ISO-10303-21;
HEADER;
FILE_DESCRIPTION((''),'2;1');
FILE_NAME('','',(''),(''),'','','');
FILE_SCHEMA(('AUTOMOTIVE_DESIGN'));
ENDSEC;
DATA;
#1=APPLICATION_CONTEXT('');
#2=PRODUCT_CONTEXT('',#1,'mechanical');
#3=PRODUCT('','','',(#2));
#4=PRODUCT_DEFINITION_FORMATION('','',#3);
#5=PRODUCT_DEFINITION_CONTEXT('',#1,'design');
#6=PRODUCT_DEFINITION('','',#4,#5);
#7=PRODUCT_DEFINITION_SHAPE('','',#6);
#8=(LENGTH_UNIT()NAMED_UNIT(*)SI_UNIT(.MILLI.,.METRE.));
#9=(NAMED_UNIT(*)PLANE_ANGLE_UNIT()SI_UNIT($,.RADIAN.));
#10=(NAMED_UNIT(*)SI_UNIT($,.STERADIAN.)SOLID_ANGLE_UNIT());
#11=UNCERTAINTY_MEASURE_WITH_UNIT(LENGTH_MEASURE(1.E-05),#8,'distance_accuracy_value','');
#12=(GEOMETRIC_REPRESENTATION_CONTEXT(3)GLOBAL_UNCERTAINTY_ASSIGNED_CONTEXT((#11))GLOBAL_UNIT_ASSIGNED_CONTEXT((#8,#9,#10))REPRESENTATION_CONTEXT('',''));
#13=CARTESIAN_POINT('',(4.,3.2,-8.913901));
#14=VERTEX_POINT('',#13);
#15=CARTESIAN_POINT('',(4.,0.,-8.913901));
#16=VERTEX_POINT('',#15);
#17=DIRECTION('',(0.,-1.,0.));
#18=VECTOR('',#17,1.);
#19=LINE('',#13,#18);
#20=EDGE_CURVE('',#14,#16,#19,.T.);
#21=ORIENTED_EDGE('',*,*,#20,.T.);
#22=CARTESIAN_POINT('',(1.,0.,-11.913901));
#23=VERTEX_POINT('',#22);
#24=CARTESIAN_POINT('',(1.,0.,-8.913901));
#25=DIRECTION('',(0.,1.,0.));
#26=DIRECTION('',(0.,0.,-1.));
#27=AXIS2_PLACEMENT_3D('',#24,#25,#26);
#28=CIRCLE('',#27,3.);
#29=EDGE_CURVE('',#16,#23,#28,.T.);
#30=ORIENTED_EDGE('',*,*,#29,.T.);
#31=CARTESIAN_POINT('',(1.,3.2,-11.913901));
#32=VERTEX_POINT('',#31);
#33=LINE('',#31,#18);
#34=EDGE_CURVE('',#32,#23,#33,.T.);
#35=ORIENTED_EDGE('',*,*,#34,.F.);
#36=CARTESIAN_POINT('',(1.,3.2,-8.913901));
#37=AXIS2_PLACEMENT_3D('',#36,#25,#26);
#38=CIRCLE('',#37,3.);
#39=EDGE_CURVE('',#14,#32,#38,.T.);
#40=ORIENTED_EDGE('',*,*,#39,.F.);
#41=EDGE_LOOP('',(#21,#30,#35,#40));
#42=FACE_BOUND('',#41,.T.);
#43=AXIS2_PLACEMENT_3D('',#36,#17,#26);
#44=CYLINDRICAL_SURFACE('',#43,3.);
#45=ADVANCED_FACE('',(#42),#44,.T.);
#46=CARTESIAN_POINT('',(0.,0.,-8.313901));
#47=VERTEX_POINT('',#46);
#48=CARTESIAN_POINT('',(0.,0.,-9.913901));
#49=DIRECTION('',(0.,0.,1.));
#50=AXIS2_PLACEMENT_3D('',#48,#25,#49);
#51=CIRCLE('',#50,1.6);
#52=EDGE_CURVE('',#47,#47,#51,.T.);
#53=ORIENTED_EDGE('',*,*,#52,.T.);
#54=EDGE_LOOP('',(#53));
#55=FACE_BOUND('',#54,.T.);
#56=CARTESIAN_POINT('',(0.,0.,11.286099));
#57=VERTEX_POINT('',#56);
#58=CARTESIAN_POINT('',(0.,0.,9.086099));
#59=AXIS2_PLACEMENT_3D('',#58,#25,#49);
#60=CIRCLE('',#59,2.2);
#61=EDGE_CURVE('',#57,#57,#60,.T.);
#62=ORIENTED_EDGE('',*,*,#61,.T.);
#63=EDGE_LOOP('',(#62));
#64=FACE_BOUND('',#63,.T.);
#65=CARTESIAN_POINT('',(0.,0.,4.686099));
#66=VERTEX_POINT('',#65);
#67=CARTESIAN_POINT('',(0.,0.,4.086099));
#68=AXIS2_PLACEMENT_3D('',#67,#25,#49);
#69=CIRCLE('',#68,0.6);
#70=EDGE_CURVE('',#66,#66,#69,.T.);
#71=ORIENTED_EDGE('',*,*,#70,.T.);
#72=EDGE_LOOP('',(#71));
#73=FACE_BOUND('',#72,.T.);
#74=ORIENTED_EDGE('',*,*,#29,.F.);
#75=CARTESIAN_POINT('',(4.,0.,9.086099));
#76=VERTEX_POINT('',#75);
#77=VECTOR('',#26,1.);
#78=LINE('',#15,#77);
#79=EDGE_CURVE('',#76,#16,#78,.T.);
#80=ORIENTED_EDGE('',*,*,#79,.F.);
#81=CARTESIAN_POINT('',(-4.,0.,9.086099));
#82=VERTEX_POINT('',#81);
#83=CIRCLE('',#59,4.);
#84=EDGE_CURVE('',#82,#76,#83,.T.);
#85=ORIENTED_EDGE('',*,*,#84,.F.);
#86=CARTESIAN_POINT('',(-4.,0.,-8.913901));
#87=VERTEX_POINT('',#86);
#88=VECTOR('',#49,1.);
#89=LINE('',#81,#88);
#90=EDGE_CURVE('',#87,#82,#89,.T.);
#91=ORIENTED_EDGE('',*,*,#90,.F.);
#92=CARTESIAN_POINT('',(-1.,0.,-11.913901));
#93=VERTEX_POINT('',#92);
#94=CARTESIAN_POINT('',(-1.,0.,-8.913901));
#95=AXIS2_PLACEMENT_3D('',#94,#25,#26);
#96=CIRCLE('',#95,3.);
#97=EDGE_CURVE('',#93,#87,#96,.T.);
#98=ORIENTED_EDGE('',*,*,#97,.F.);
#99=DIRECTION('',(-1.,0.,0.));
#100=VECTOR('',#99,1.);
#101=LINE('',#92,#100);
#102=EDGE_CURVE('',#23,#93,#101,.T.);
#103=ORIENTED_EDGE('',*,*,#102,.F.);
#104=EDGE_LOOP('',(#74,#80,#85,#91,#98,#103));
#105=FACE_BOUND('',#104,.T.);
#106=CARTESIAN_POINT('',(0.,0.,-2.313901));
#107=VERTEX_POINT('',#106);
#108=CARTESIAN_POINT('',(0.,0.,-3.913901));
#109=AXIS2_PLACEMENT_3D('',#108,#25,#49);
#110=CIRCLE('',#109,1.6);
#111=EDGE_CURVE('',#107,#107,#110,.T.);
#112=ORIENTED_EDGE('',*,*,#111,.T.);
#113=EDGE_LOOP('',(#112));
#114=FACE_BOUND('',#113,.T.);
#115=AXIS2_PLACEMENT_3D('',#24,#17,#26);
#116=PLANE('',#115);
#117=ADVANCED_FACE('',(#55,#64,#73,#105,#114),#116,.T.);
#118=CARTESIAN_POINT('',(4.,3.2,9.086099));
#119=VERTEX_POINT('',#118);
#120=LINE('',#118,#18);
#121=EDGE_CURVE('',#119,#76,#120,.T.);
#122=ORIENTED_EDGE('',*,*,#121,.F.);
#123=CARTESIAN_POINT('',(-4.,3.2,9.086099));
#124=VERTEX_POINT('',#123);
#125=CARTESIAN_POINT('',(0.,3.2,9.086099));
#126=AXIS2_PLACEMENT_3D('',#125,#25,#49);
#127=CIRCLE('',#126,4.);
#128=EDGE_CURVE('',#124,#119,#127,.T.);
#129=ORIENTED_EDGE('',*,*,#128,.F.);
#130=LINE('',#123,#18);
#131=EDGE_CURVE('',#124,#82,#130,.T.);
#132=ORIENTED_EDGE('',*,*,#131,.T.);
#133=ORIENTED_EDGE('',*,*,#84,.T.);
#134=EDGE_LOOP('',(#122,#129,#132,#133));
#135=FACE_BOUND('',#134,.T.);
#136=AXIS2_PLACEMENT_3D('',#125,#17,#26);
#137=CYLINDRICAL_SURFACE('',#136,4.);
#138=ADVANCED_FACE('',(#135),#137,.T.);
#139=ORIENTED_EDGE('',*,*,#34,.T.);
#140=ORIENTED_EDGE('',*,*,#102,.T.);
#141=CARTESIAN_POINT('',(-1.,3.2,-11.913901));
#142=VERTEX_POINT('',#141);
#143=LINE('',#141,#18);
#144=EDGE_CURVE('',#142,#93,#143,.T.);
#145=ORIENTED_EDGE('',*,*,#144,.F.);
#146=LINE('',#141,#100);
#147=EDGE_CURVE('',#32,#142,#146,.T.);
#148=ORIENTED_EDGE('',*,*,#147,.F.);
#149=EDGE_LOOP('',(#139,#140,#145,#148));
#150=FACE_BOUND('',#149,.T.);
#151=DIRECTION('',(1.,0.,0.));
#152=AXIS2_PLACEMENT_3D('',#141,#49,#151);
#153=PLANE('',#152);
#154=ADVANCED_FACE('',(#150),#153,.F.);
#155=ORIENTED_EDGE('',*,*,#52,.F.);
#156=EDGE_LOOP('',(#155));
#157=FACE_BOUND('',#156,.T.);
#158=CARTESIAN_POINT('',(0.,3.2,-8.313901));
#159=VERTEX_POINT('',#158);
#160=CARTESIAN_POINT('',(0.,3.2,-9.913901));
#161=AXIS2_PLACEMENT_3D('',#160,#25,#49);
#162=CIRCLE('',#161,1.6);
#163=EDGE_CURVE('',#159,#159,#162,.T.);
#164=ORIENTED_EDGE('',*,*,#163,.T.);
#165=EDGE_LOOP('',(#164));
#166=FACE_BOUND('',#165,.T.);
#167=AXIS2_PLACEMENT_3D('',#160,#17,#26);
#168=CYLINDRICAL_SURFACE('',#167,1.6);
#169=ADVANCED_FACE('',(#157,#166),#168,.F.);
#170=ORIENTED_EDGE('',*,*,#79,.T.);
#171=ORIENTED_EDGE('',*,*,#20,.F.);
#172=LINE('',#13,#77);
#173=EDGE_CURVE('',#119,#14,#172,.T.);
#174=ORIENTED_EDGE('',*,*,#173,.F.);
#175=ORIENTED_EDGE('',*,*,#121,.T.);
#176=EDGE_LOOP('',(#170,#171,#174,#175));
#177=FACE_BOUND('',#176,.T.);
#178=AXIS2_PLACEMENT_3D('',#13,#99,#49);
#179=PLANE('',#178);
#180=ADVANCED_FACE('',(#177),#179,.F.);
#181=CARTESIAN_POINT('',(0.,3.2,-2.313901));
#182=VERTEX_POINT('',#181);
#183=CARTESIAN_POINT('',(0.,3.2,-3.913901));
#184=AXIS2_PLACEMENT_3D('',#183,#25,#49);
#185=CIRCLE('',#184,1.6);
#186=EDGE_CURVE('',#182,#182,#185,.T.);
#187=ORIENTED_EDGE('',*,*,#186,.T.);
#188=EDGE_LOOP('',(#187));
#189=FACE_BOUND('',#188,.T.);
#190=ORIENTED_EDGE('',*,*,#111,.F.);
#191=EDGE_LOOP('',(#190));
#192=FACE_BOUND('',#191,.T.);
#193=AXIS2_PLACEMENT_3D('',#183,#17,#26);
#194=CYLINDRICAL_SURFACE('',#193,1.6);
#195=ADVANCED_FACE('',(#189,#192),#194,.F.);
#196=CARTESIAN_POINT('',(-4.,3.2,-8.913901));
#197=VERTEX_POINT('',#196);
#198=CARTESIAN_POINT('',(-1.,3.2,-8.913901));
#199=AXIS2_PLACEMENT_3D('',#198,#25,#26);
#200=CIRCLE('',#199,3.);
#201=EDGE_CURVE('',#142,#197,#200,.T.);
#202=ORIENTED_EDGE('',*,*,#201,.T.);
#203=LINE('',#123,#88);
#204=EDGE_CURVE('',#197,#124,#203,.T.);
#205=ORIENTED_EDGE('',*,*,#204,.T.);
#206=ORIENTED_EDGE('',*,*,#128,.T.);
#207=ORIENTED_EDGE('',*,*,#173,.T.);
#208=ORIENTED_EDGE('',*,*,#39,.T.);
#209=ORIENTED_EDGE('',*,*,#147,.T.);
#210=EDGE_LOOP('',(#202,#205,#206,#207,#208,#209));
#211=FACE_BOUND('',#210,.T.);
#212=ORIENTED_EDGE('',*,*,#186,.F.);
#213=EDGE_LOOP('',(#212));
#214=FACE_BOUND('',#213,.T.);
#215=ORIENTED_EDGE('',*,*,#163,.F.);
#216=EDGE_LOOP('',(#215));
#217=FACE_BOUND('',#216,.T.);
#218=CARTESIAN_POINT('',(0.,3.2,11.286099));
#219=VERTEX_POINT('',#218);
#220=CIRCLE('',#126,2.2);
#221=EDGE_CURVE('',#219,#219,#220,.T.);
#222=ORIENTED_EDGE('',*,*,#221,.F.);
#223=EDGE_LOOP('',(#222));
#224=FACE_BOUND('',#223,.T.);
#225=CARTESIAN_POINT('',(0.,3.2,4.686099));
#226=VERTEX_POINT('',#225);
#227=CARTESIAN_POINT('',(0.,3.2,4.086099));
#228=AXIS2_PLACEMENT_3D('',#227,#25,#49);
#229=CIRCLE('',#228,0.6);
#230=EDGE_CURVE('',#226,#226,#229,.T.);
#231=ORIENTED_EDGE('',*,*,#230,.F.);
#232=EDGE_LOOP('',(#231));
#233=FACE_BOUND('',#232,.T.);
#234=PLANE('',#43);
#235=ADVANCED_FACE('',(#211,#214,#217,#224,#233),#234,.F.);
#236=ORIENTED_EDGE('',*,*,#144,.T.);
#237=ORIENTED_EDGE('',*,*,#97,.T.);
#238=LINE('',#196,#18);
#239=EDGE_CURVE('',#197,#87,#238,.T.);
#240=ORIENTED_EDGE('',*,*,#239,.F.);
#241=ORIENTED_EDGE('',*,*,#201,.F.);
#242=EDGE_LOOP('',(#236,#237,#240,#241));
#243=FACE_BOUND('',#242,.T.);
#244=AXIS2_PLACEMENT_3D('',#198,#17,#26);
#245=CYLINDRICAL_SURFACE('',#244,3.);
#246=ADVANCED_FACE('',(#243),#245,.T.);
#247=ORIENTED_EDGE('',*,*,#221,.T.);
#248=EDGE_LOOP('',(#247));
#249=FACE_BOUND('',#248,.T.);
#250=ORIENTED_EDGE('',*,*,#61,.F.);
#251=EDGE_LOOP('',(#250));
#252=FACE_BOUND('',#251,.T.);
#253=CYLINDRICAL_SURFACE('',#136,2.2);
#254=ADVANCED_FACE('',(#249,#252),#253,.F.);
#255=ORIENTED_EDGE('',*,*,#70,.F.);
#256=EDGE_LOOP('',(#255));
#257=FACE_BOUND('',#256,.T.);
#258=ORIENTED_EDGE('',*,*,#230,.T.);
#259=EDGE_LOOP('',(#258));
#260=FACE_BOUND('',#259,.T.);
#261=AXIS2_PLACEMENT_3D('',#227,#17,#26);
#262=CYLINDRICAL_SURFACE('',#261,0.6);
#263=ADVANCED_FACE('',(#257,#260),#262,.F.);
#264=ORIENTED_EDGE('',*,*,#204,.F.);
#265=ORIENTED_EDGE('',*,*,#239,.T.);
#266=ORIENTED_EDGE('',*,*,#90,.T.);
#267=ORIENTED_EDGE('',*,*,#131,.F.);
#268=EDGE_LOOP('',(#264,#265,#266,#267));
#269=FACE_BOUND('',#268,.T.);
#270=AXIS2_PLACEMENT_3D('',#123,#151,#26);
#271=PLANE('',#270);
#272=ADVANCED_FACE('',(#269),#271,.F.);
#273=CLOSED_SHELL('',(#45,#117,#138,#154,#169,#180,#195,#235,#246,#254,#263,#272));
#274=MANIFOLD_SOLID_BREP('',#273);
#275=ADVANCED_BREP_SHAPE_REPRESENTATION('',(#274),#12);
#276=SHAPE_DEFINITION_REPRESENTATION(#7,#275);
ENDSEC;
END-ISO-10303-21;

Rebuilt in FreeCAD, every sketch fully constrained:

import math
import FreeCAD as App
import Part
import Sketcher

V = App.Vector
Q = App.Units.Quantity

doc = App.newDocument("Part")
body = doc.addObject("PartDesign::Body", "Body")

# Sketch on XZ plane
sketch1 = body.newObject("Sketcher::SketchObject", "Sketch")
sketch1.AttachmentSupport = (doc.getObject("XZ_Plane"), [""])
sketch1.MapMode = "FlatFace"
sketch1.addGeometry(Part.LineSegment(V(-4, -8.9, 0), V(-4, 9.1, 0)), False)
sketch1.addGeometry(Part.ArcOfCircle(Part.Circle(V(0, 9.1, 0), V(0, 0, 1), 4), math.radians(0), math.radians(180)), False)
sketch1.addGeometry(Part.LineSegment(V(4, 9.1, 0), V(4, -8.9, 0)), False)
sketch1.addGeometry(Part.ArcOfCircle(Part.Circle(V(1, -8.9, 0), V(0, 0, 1), 3), math.radians(-90), math.radians(0)), False)
sketch1.addGeometry(Part.LineSegment(V(1, -11.9, 0), V(-1, -11.9, 0)), False)
sketch1.addGeometry(Part.ArcOfCircle(Part.Circle(V(-1, -8.9, 0), V(0, 0, 1), 3), math.radians(180), math.radians(270)), False)
sketch1.addGeometry(Part.Circle(V(0, 9.1, 0), V(0, 0, 1), 2.2), False)
sketch1.addGeometry(Part.Circle(V(0, 4.1, 0), V(0, 0, 1), 0.6), False)
sketch1.addGeometry(Part.Circle(V(0, -3.9, 0), V(0, 0, 1), 1.6), False)
sketch1.addGeometry(Part.Circle(V(0, -9.9, 0), V(0, 0, 1), 1.6), False)
sketch1.addConstraint(Sketcher.Constraint("Tangent", 0, 2, 1, 2))
sketch1.addConstraint(Sketcher.Constraint("Tangent", 1, 1, 2, 1))
sketch1.addConstraint(Sketcher.Constraint("Tangent", 2, 2, 3, 2))
sketch1.addConstraint(Sketcher.Constraint("Tangent", 3, 1, 4, 1))
sketch1.addConstraint(Sketcher.Constraint("Tangent", 4, 2, 5, 2))
sketch1.addConstraint(Sketcher.Constraint("Tangent", 5, 1, 0, 1))
sketch1.addConstraint(Sketcher.Constraint("Vertical", 0))
sketch1.addConstraint(Sketcher.Constraint("Vertical", 2))
sketch1.addConstraint(Sketcher.Constraint("Horizontal", 4))
sketch1.addConstraint(Sketcher.Constraint("Coincident", 6, 3, 1, 3))
sketch1.addConstraint(Sketcher.Constraint("Equal", 3, 5))
sketch1.addConstraint(Sketcher.Constraint("Equal", 8, 9))
sketch1.addConstraint(Sketcher.Constraint("PointOnObject", 1, 3, -2))
sketch1.addConstraint(Sketcher.Constraint("PointOnObject", 7, 3, -2))
sketch1.addConstraint(Sketcher.Constraint("PointOnObject", 8, 3, -2))
sketch1.addConstraint(Sketcher.Constraint("PointOnObject", 9, 3, -2))
sketch1.addConstraint(Sketcher.Constraint("Radius", 1, Q("4 mm")))
sketch1.addConstraint(Sketcher.Constraint("Radius", 3, Q("3 mm")))
sketch1.addConstraint(Sketcher.Constraint("Diameter", 6, Q("4.4 mm")))
sketch1.addConstraint(Sketcher.Constraint("Diameter", 7, Q("1.2 mm")))
sketch1.addConstraint(Sketcher.Constraint("Diameter", 8, Q("3.2 mm")))
sketch1.addConstraint(Sketcher.Constraint("DistanceY", 0, 1, 0, 2, Q("18 mm")))
sketch1.addConstraint(Sketcher.Constraint("DistanceY", 7, 3, 1, 3, Q("5 mm")))
sketch1.addConstraint(Sketcher.Constraint("DistanceY", 3, 3, 8, 3, Q("5 mm")))
sketch1.addConstraint(Sketcher.Constraint("DistanceY", 9, 3, 3, 3, Q("1 mm")))
sketch1.addConstraint(Sketcher.Constraint("DistanceY", -1, 1, 1, 3, Q("9.086099 mm")))
pad1 = body.newObject("PartDesign::Pad", "Pad")
pad1.Profile = sketch1
pad1.Length = 3.2
pad1.Reversed = True

doc.recompute()
